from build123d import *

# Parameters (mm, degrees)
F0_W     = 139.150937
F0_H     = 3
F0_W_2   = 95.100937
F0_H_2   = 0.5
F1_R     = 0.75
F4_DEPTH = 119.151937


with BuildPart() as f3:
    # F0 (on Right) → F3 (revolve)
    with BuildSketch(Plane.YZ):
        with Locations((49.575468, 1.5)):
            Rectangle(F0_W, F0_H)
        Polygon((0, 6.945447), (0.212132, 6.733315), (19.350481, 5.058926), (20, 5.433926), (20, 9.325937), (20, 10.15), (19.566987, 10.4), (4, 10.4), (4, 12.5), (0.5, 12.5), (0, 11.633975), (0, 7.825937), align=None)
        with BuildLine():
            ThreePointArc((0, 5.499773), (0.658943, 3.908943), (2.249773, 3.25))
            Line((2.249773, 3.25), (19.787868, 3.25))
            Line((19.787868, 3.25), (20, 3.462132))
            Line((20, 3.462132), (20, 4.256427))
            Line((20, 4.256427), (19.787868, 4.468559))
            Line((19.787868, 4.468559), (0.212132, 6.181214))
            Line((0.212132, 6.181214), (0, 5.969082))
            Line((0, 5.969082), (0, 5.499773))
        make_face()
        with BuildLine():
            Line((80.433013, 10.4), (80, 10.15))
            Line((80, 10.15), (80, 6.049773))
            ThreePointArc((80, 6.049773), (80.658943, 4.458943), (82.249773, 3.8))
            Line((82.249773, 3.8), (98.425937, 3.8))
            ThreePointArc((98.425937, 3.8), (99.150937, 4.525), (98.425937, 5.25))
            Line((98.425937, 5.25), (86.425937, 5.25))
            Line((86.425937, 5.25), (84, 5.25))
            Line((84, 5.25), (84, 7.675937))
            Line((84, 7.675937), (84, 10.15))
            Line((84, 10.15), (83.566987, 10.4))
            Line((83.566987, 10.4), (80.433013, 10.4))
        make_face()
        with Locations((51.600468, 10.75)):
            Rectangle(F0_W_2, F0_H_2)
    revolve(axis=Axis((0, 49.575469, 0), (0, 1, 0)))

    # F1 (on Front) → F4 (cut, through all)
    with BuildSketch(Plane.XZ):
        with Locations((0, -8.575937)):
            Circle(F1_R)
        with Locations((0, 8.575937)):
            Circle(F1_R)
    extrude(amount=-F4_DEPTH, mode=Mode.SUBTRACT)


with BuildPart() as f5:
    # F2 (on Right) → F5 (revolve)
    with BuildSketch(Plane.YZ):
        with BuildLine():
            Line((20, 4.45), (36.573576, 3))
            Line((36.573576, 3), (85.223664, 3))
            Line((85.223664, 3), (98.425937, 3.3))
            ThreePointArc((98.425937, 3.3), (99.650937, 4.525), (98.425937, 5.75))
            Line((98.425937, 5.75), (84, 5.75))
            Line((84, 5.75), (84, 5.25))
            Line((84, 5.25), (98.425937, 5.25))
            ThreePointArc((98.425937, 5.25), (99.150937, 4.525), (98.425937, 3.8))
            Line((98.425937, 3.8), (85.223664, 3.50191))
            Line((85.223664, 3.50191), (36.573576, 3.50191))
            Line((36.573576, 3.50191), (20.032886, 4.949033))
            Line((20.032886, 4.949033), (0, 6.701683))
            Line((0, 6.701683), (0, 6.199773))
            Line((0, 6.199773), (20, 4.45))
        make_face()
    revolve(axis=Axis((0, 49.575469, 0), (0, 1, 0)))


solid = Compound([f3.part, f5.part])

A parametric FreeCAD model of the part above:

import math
import FreeCAD as App
import Part
import Sketcher
Q = App.Units.Quantity

doc = App.newDocument("Part")
body = doc.addObject("PartDesign::Body", "Body")
body.AllowCompound = True

# Sketch on YZ plane
sketch1 = body.newObject("Sketcher::SketchObject", "Sketch")
sketch1.AttachmentSupport = (doc.getObject("YZ_Plane"), [""])
sketch1.MapMode = "FlatFace"
sketch1.addGeometry([
    Part.LineSegment(App.Vector(-20, 3, 0), App.Vector(-20, 0, 0)),  # 0
    Part.LineSegment(App.Vector(-20, 0, 0), App.Vector(119.15, 0, 0)),  # 1
    Part.LineSegment(App.Vector(119.15, 0, 0), App.Vector(119.15, 3, 0)),  # 2
    Part.LineSegment(App.Vector(119.15, 3, 0), App.Vector(-20, 3, 0)),  # 3
    Part.LineSegment(App.Vector(0, 6.95, 0), App.Vector(0.21, 6.73, 0)),  # 4
    Part.LineSegment(App.Vector(0.21, 6.73, 0), App.Vector(19.35, 5.06, 0)),  # 5
    Part.LineSegment(App.Vector(19.35, 5.06, 0), App.Vector(20, 5.43, 0)),  # 6
    Part.LineSegment(App.Vector(20, 5.43, 0), App.Vector(20, 10.15, 0)),  # 7
    Part.LineSegment(App.Vector(20, 10.15, 0), App.Vector(19.57, 10.4, 0)),  # 8
    Part.LineSegment(App.Vector(19.57, 10.4, 0), App.Vector(4, 10.4, 0)),  # 9
    Part.LineSegment(App.Vector(4, 10.4, 0), App.Vector(4, 12.5, 0)),  # 10
    Part.LineSegment(App.Vector(4, 12.5, 0), App.Vector(0.5, 12.5, 0)),  # 11
    Part.LineSegment(App.Vector(0.5, 12.5, 0), App.Vector(0, 11.63, 0)),  # 12
    Part.LineSegment(App.Vector(0, 11.63, 0), App.Vector(0, 6.95, 0)),  # 13
    Part.ArcOfCircle(Part.Circle(App.Vector(2.25, 5.5, 0), App.Vector(0, 0, 1), 2.25), math.radians(180), math.radians(270)),  # 14
    Part.LineSegment(App.Vector(2.25, 3.25, 0), App.Vector(19.79, 3.25, 0)),  # 15
    Part.LineSegment(App.Vector(19.79, 3.25, 0), App.Vector(20, 3.46, 0)),  # 16
    Part.LineSegment(App.Vector(20, 3.46, 0), App.Vector(20, 4.26, 0)),  # 17
    Part.LineSegment(App.Vector(20, 4.26, 0), App.Vector(19.79, 4.47, 0)),  # 18
    Part.LineSegment(App.Vector(19.79, 4.47, 0), App.Vector(0.21, 6.18, 0)),  # 19
    Part.LineSegment(App.Vector(0.21, 6.18, 0), App.Vector(0, 5.97, 0)),  # 20
    Part.LineSegment(App.Vector(0, 5.97, 0), App.Vector(0, 5.5, 0)),  # 21
    Part.LineSegment(App.Vector(80.43, 10.4, 0), App.Vector(80, 10.15, 0)),  # 22
    Part.LineSegment(App.Vector(80, 10.15, 0), App.Vector(80, 6.05, 0)),  # 23
    Part.ArcOfCircle(Part.Circle(App.Vector(82.25, 6.05, 0), App.Vector(0, 0, 1), 2.25), math.radians(180), math.radians(270)),  # 24
    Part.LineSegment(App.Vector(82.25, 3.8, 0), App.Vector(98.43, 3.8, 0)),  # 25
    Part.ArcOfCircle(Part.Circle(App.Vector(98.43, 4.53, 0), App.Vector(0, 0, 1), 0.72), math.radians(-90), math.radians(90)),  # 26
    Part.LineSegment(App.Vector(98.43, 5.25, 0), App.Vector(84, 5.25, 0)),  # 27
    Part.LineSegment(App.Vector(84, 5.25, 0), App.Vector(84, 10.15, 0)),  # 28
    Part.LineSegment(App.Vector(84, 10.15, 0), App.Vector(83.57, 10.4, 0)),  # 29
    Part.LineSegment(App.Vector(83.57, 10.4, 0), App.Vector(80.43, 10.4, 0)),  # 30
    Part.LineSegment(App.Vector(4.05, 11, 0), App.Vector(4.05, 10.5, 0)),  # 31
    Part.LineSegment(App.Vector(4.05, 10.5, 0), App.Vector(99.15, 10.5, 0)),  # 32
    Part.LineSegment(App.Vector(99.15, 10.5, 0), App.Vector(99.15, 11, 0)),  # 33
    Part.LineSegment(App.Vector(99.15, 11, 0), App.Vector(4.05, 11, 0)),  # 34
], False)
sketch1.addConstraint([
    Sketcher.Constraint("Coincident", 0, 2, 1, 1),
    Sketcher.Constraint("Coincident", 1, 2, 2, 1),
    Sketcher.Constraint("Coincident", 2, 2, 3, 1),
    Sketcher.Constraint("Coincident", 3, 2, 0, 1),
    Sketcher.Constraint("Coincident", 4, 2, 5, 1),
    Sketcher.Constraint("Coincident", 5, 2, 6, 1),
    Sketcher.Constraint("Coincident", 6, 2, 7, 1),
    Sketcher.Constraint("Coincident", 7, 2, 8, 1),
    Sketcher.Constraint("Coincident", 8, 2, 9, 1),
    Sketcher.Constraint("Coincident", 9, 2, 10, 1),
    Sketcher.Constraint("Coincident", 10, 2, 11, 1),
    Sketcher.Constraint("Coincident", 11, 2, 12, 1),
    Sketcher.Constraint("Coincident", 12, 2, 13, 1),
    Sketcher.Constraint("Coincident", 13, 2, 4, 1),
    Sketcher.Constraint("Tangent", 14, 2, 15, 1),
    Sketcher.Constraint("Coincident", 15, 2, 16, 1),
    Sketcher.Constraint("Coincident", 16, 2, 17, 1),
    Sketcher.Constraint("Coincident", 17, 2, 18, 1),
    Sketcher.Constraint("Coincident", 18, 2, 19, 1),
    Sketcher.Constraint("Coincident", 19, 2, 20, 1),
    Sketcher.Constraint("Coincident", 20, 2, 21, 1),
    Sketcher.Constraint("Tangent", 21, 2, 14, 1),
    Sketcher.Constraint("Coincident", 22, 2, 23, 1),
    Sketcher.Constraint("Tangent", 23, 2, 24, 1),
    Sketcher.Constraint("Tangent", 24, 2, 25, 1),
    Sketcher.Constraint("Tangent", 25, 2, 26, 1),
    Sketcher.Constraint("Tangent", 26, 2, 27, 1),
    Sketcher.Constraint("Coincident", 27, 2, 28, 1),
    Sketcher.Constraint("Coincident", 28, 2, 29, 1),
    Sketcher.Constraint("Coincident", 29, 2, 30, 1),
    Sketcher.Constraint("Coincident", 30, 2, 22, 1),
    Sketcher.Constraint("Coincident", 31, 2, 32, 1),
    Sketcher.Constraint("Coincident", 32, 2, 33, 1),
    Sketcher.Constraint("Coincident", 33, 2, 34, 1),
    Sketcher.Constraint("Coincident", 34, 2, 31, 1),
    Sketcher.Constraint("Vertical", 0),
    Sketcher.Constraint("Horizontal", 1),
    Sketcher.Constraint("Vertical", 2),
    Sketcher.Constraint("Horizontal", 3),
    Sketcher.Constraint("Vertical", 7),
    Sketcher.Constraint("Horizontal", 9),
    Sketcher.Constraint("Vertical", 10),
    Sketcher.Constraint("Horizontal", 11),
    Sketcher.Constraint("Vertical", 13),
    Sketcher.Constraint("Horizontal", 15),
    Sketcher.Constraint("Vertical", 17),
    Sketcher.Constraint("Vertical", 21),
    Sketcher.Constraint("Vertical", 23),
    Sketcher.Constraint("Horizontal", 25),
    Sketcher.Constraint("Horizontal", 27),
    Sketcher.Constraint("Vertical", 28),
    Sketcher.Constraint("Horizontal", 30),
    Sketcher.Constraint("Vertical", 31),
    Sketcher.Constraint("Horizontal", 32),
    Sketcher.Constraint("Vertical", 33),
    Sketcher.Constraint("Horizontal", 34),
    Sketcher.Constraint("Equal", 14, 24),
    Sketcher.Constraint("PointOnObject", 0, 2, -1),
    Sketcher.Constraint("PointOnObject", 12, 2, -2),
    Sketcher.Constraint("PointOnObject", 20, 2, -2),
    Sketcher.Constraint("Perpendicular", 8, 12),
    Sketcher.Constraint("Perpendicular", 4, 16),
    Sketcher.Constraint("Perpendicular", 16, 18),
    Sketcher.Constraint("Parallel", 5, 19),
    Sketcher.Constraint("Perpendicular", 18, 20),
    Sketcher.Constraint("Parallel", 6, 22),
    Sketcher.Constraint("Perpendicular", 12, 29),
    Sketcher.Constraint("Horizontal", 7, 2, 22, 2),
    Sketcher.Constraint("Horizontal", 22, 2, 28, 2),
    Sketcher.Constraint("Horizontal", 9, 2, 29, 2),
    Sketcher.Constraint("Vertical", 7, 2, 16, 2),
    Sketcher.Constraint("Vertical", 15, 2, 18, 2),
    Sketcher.Constraint("Vertical", 4, 2, 19, 2),
    Sketcher.Constraint("Equal", 4, 16),
    Sketcher.Constraint("Equal", 16, 18),
    Sketcher.Constraint("Equal", 8, 22),
    Sketcher.Constraint("DistanceY", 0, 2, 0, 1, Q("3 mm")),
    Sketcher.Constraint("Angle", 5, Q("-5.000001 deg")),
    Sketcher.Constraint("Angle", 6, Q("30.000002 deg")),
    Sketcher.Constraint("Distance", 12, Q("1 mm")),
    Sketcher.Constraint("DistanceX", 11, 2, 11, 1, Q("3.5 mm")),
    Sketcher.Constraint("DistanceY", 10, 1, 10, 2, Q("2.1 mm")),
    Sketcher.Constraint("DistanceY", 28, 1, 28, 2, Q("4.9 mm")),
    Sketcher.Constraint("DistanceY", 31, 2, 31, 1, Q("0.5 mm")),
    Sketcher.Constraint("DistanceX", 0, 2, -1, 1, Q("20 mm")),
    Sketcher.Constraint("DistanceX", -1, 1, 6, 2, Q("20 mm")),
    Sketcher.Constraint("DistanceX", -1, 1, 22, 2, Q("80 mm")),
    Sketcher.Constraint("DistanceX", -1, 1, 27, 2, Q("84 mm")),
    Sketcher.Constraint("DistanceY", -1, 1, 33, 2, Q("11 mm")),
    Sketcher.Constraint("Radius", 26, Q("0.725 mm")),
    Sketcher.Constraint("DistanceY", 31, 2, 10, 2, Q("2 mm")),
    Sketcher.Constraint("Distance", 4, Q("0.3 mm")),
    Sketcher.Constraint("Distance", 8, Q("0.5 mm")),
    Sketcher.Constraint("DistanceY", 15, 2, 7, 2, Q("6.9 mm")),
    Sketcher.Constraint("Distance", 6, Q("0.75 mm")),
    Sketcher.Constraint("DistanceX", -1, 1, 31, 2, Q("4.05 mm")),
    Sketcher.Constraint("Radius", 14, Q("2.249772 mm")),
    Sketcher.Constraint("DistanceX", 26, 3, 1, 2, Q("20.724999 mm")),
    Sketcher.Constraint("DistanceX", 26, 2, 32, 2, Q("0.724999 mm")),
    Sketcher.Constraint("DistanceY", 21, 2, 21, 1, Q("0.469309 mm")),
    Sketcher.Constraint("DistanceY", 17, 2, 5, 2, Q("0.802499 mm")),
    Sketcher.Constraint("DistanceX", 1, 1, 1, 2, Q("139.150937 mm")),
])
revolution = body.newObject("PartDesign::Revolution", "Revolution")
revolution.Profile = sketch1
revolution.ReferenceAxis = (sketch1, ["H_Axis"])
revolution.Angle = 360

# Sketch on XZ plane
sketch2 = body.newObject("Sketcher::SketchObject", "Sketch001")
sketch2.AttachmentSupport = (doc.getObject("XZ_Plane"), [""])
sketch2.MapMode = "FlatFace"
sketch2.addGeometry([
    Part.Circle(App.Vector(0, -8.6, 0), App.Vector(0, 0, 1), 0.8),
    Part.Circle(App.Vector(0, 8.6, 0), App.Vector(0, 0, 1), 0.8),
], False)
sketch2.addConstraint([
    Sketcher.Constraint("Equal", 0, 1),
    Sketcher.Constraint("Symmetric", 0, 3, 1, 3, -1, 1),
    Sketcher.Constraint("PointOnObject", 0, 3, -2),
    Sketcher.Constraint("Diameter", 0, Q("1.5 mm")),
    Sketcher.Constraint("DistanceY", 0, 3, -1, 1, Q("8.575937 mm")),
])
pocket1 = body.newObject("PartDesign::Pocket", "Pocket")
pocket1.Profile = sketch2
pocket1.Type = "ThroughAll"
body2 = doc.addObject("PartDesign::Body", "Body001")

# Sketch on YZ plane
sketch3 = body2.newObject("Sketcher::SketchObject", "Sketch002")
sketch3.AttachmentSupport = (doc.getObject("YZ_Plane001"), [""])
sketch3.MapMode = "FlatFace"
sketch3.addGeometry([
    Part.LineSegment(App.Vector(20, 4.5, 0), App.Vector(36.6, 3, 0)),  # 0
    Part.LineSegment(App.Vector(36.6, 3, 0), App.Vector(85.2, 3, 0)),  # 1
    Part.LineSegment(App.Vector(85.2, 3, 0), App.Vector(98.4, 3.3, 0)),  # 2
    Part.ArcOfCircle(Part.Circle(App.Vector(98.4, 4.5, 0), App.Vector(0, 0, 1), 1.2), math.radians(-90), math.radians(90)),  # 3
    Part.LineSegment(App.Vector(98.4, 5.8, 0), App.Vector(84, 5.8, 0)),  # 4
    Part.LineSegment(App.Vector(84, 5.8, 0), App.Vector(84, 5.2, 0)),  # 5
    Part.LineSegment(App.Vector(84, 5.2, 0), App.Vector(98.4, 5.2, 0)),  # 6
    Part.ArcOfCircle(Part.Circle(App.Vector(98.4, 4.5, 0), App.Vector(0, 0, 1), 0.7), math.radians(-90), math.radians(90)),  # 7
    Part.LineSegment(App.Vector(98.4, 3.8, 0), App.Vector(85.2, 3.5, 0)),  # 8
    Part.LineSegment(App.Vector(85.2, 3.5, 0), App.Vector(36.6, 3.5, 0)),  # 9
    Part.LineSegment(App.Vector(36.6, 3.5, 0), App.Vector(20, 4.9, 0)),  # 10
    Part.LineSegment(App.Vector(20, 4.9, 0), App.Vector(0, 6.7, 0)),  # 11
    Part.LineSegment(App.Vector(0, 6.7, 0), App.Vector(0, 6.2, 0)),  # 12
    Part.LineSegment(App.Vector(0, 6.2, 0), App.Vector(20, 4.5, 0)),  # 13
], False)
sketch3.addConstraint([
    Sketcher.Constraint("Coincident", 0, 2, 1, 1),
    Sketcher.Constraint("Coincident", 1, 2, 2, 1),
    Sketcher.Constraint("Coincident", 2, 2, 3, 1),
    Sketcher.Constraint("Tangent", 3, 2, 4, 1),
    Sketcher.Constraint("Coincident", 4, 2, 5, 1),
    Sketcher.Constraint("Coincident", 5, 2, 6, 1),
    Sketcher.Constraint("Tangent", 6, 2, 7, 2),
    Sketcher.Constraint("Coincident", 7, 1, 8, 1),
    Sketcher.Constraint("Coincident", 8, 2, 9, 1),
    Sketcher.Constraint("Coincident", 9, 2, 10, 1),
    Sketcher.Constraint("Coincident", 10, 2, 11, 1),
    Sketcher.Constraint("Coincident", 11, 2, 12, 1),
    Sketcher.Constraint("Coincident", 12, 2, 13, 1),
    Sketcher.Constraint("Coincident", 13, 2, 0, 1),
    Sketcher.Constraint("Horizontal", 1),
    Sketcher.Constraint("Horizontal", 4),
    Sketcher.Constraint("Vertical", 5),
    Sketcher.Constraint("Horizontal", 6),
    Sketcher.Constraint("Horizontal", 9),
    Sketcher.Constraint("Vertical", 12),
    Sketcher.Constraint("Coincident", 7, 3, 3, 3),
    Sketcher.Constraint("PointOnObject", 11, 2, -2),
    Sketcher.Constraint("Parallel", 0, 10),
    Sketcher.Constraint("Parallel", 10, 11),
    Sketcher.Constraint("Parallel", 11, 13),
    Sketcher.Constraint("Vertical", 7, 3, 2, 2),
    Sketcher.Constraint("Vertical", 6, 2, 7, 1),
    Sketcher.Constraint("Vertical", 1, 2, 8, 2),
    Sketcher.Constraint("Vertical", 0, 2, 9, 2),
    Sketcher.Constraint("Angle", 0, Q("-5 deg")),
    Sketcher.Constraint("DistanceY", 5, 2, 5, 1, Q("0.5 mm")),
    Sketcher.Constraint("DistanceY", -1, 1, 0, 2, Q("3 mm")),
    Sketcher.Constraint("DistanceX", -1, 1, 4, 2, Q("84 mm")),
    Sketcher.Constraint("DistanceX", -1, 1, 13, 2, Q("20 mm")),
    Sketcher.Constraint("Radius", 3, Q("1.225 mm")),
    Sketcher.Constraint("DistanceY", -1, 1, 2, 2, Q("3.3 mm")),
    Sketcher.Constraint("DistanceY", -1, 1, 13, 2, Q("4.45 mm")),
    Sketcher.Constraint("DistanceY", 12, 2, 12, 1, Q("0.50191 mm")),
    Sketcher.Constraint("Distance", 2, Q("13.205681 mm")),
    Sketcher.Constraint("Distance", 11, Q("20.109408 mm")),
    Sketcher.Constraint("DistanceX", 1, 1, 1, 2, Q("48.650088 mm")),
])
revolution2 = body2.newObject("PartDesign::Revolution", "Revolution001")
revolution2.Profile = sketch3
revolution2.ReferenceAxis = (sketch3, ["H_Axis"])
revolution2.Angle = 360

doc.recompute()
